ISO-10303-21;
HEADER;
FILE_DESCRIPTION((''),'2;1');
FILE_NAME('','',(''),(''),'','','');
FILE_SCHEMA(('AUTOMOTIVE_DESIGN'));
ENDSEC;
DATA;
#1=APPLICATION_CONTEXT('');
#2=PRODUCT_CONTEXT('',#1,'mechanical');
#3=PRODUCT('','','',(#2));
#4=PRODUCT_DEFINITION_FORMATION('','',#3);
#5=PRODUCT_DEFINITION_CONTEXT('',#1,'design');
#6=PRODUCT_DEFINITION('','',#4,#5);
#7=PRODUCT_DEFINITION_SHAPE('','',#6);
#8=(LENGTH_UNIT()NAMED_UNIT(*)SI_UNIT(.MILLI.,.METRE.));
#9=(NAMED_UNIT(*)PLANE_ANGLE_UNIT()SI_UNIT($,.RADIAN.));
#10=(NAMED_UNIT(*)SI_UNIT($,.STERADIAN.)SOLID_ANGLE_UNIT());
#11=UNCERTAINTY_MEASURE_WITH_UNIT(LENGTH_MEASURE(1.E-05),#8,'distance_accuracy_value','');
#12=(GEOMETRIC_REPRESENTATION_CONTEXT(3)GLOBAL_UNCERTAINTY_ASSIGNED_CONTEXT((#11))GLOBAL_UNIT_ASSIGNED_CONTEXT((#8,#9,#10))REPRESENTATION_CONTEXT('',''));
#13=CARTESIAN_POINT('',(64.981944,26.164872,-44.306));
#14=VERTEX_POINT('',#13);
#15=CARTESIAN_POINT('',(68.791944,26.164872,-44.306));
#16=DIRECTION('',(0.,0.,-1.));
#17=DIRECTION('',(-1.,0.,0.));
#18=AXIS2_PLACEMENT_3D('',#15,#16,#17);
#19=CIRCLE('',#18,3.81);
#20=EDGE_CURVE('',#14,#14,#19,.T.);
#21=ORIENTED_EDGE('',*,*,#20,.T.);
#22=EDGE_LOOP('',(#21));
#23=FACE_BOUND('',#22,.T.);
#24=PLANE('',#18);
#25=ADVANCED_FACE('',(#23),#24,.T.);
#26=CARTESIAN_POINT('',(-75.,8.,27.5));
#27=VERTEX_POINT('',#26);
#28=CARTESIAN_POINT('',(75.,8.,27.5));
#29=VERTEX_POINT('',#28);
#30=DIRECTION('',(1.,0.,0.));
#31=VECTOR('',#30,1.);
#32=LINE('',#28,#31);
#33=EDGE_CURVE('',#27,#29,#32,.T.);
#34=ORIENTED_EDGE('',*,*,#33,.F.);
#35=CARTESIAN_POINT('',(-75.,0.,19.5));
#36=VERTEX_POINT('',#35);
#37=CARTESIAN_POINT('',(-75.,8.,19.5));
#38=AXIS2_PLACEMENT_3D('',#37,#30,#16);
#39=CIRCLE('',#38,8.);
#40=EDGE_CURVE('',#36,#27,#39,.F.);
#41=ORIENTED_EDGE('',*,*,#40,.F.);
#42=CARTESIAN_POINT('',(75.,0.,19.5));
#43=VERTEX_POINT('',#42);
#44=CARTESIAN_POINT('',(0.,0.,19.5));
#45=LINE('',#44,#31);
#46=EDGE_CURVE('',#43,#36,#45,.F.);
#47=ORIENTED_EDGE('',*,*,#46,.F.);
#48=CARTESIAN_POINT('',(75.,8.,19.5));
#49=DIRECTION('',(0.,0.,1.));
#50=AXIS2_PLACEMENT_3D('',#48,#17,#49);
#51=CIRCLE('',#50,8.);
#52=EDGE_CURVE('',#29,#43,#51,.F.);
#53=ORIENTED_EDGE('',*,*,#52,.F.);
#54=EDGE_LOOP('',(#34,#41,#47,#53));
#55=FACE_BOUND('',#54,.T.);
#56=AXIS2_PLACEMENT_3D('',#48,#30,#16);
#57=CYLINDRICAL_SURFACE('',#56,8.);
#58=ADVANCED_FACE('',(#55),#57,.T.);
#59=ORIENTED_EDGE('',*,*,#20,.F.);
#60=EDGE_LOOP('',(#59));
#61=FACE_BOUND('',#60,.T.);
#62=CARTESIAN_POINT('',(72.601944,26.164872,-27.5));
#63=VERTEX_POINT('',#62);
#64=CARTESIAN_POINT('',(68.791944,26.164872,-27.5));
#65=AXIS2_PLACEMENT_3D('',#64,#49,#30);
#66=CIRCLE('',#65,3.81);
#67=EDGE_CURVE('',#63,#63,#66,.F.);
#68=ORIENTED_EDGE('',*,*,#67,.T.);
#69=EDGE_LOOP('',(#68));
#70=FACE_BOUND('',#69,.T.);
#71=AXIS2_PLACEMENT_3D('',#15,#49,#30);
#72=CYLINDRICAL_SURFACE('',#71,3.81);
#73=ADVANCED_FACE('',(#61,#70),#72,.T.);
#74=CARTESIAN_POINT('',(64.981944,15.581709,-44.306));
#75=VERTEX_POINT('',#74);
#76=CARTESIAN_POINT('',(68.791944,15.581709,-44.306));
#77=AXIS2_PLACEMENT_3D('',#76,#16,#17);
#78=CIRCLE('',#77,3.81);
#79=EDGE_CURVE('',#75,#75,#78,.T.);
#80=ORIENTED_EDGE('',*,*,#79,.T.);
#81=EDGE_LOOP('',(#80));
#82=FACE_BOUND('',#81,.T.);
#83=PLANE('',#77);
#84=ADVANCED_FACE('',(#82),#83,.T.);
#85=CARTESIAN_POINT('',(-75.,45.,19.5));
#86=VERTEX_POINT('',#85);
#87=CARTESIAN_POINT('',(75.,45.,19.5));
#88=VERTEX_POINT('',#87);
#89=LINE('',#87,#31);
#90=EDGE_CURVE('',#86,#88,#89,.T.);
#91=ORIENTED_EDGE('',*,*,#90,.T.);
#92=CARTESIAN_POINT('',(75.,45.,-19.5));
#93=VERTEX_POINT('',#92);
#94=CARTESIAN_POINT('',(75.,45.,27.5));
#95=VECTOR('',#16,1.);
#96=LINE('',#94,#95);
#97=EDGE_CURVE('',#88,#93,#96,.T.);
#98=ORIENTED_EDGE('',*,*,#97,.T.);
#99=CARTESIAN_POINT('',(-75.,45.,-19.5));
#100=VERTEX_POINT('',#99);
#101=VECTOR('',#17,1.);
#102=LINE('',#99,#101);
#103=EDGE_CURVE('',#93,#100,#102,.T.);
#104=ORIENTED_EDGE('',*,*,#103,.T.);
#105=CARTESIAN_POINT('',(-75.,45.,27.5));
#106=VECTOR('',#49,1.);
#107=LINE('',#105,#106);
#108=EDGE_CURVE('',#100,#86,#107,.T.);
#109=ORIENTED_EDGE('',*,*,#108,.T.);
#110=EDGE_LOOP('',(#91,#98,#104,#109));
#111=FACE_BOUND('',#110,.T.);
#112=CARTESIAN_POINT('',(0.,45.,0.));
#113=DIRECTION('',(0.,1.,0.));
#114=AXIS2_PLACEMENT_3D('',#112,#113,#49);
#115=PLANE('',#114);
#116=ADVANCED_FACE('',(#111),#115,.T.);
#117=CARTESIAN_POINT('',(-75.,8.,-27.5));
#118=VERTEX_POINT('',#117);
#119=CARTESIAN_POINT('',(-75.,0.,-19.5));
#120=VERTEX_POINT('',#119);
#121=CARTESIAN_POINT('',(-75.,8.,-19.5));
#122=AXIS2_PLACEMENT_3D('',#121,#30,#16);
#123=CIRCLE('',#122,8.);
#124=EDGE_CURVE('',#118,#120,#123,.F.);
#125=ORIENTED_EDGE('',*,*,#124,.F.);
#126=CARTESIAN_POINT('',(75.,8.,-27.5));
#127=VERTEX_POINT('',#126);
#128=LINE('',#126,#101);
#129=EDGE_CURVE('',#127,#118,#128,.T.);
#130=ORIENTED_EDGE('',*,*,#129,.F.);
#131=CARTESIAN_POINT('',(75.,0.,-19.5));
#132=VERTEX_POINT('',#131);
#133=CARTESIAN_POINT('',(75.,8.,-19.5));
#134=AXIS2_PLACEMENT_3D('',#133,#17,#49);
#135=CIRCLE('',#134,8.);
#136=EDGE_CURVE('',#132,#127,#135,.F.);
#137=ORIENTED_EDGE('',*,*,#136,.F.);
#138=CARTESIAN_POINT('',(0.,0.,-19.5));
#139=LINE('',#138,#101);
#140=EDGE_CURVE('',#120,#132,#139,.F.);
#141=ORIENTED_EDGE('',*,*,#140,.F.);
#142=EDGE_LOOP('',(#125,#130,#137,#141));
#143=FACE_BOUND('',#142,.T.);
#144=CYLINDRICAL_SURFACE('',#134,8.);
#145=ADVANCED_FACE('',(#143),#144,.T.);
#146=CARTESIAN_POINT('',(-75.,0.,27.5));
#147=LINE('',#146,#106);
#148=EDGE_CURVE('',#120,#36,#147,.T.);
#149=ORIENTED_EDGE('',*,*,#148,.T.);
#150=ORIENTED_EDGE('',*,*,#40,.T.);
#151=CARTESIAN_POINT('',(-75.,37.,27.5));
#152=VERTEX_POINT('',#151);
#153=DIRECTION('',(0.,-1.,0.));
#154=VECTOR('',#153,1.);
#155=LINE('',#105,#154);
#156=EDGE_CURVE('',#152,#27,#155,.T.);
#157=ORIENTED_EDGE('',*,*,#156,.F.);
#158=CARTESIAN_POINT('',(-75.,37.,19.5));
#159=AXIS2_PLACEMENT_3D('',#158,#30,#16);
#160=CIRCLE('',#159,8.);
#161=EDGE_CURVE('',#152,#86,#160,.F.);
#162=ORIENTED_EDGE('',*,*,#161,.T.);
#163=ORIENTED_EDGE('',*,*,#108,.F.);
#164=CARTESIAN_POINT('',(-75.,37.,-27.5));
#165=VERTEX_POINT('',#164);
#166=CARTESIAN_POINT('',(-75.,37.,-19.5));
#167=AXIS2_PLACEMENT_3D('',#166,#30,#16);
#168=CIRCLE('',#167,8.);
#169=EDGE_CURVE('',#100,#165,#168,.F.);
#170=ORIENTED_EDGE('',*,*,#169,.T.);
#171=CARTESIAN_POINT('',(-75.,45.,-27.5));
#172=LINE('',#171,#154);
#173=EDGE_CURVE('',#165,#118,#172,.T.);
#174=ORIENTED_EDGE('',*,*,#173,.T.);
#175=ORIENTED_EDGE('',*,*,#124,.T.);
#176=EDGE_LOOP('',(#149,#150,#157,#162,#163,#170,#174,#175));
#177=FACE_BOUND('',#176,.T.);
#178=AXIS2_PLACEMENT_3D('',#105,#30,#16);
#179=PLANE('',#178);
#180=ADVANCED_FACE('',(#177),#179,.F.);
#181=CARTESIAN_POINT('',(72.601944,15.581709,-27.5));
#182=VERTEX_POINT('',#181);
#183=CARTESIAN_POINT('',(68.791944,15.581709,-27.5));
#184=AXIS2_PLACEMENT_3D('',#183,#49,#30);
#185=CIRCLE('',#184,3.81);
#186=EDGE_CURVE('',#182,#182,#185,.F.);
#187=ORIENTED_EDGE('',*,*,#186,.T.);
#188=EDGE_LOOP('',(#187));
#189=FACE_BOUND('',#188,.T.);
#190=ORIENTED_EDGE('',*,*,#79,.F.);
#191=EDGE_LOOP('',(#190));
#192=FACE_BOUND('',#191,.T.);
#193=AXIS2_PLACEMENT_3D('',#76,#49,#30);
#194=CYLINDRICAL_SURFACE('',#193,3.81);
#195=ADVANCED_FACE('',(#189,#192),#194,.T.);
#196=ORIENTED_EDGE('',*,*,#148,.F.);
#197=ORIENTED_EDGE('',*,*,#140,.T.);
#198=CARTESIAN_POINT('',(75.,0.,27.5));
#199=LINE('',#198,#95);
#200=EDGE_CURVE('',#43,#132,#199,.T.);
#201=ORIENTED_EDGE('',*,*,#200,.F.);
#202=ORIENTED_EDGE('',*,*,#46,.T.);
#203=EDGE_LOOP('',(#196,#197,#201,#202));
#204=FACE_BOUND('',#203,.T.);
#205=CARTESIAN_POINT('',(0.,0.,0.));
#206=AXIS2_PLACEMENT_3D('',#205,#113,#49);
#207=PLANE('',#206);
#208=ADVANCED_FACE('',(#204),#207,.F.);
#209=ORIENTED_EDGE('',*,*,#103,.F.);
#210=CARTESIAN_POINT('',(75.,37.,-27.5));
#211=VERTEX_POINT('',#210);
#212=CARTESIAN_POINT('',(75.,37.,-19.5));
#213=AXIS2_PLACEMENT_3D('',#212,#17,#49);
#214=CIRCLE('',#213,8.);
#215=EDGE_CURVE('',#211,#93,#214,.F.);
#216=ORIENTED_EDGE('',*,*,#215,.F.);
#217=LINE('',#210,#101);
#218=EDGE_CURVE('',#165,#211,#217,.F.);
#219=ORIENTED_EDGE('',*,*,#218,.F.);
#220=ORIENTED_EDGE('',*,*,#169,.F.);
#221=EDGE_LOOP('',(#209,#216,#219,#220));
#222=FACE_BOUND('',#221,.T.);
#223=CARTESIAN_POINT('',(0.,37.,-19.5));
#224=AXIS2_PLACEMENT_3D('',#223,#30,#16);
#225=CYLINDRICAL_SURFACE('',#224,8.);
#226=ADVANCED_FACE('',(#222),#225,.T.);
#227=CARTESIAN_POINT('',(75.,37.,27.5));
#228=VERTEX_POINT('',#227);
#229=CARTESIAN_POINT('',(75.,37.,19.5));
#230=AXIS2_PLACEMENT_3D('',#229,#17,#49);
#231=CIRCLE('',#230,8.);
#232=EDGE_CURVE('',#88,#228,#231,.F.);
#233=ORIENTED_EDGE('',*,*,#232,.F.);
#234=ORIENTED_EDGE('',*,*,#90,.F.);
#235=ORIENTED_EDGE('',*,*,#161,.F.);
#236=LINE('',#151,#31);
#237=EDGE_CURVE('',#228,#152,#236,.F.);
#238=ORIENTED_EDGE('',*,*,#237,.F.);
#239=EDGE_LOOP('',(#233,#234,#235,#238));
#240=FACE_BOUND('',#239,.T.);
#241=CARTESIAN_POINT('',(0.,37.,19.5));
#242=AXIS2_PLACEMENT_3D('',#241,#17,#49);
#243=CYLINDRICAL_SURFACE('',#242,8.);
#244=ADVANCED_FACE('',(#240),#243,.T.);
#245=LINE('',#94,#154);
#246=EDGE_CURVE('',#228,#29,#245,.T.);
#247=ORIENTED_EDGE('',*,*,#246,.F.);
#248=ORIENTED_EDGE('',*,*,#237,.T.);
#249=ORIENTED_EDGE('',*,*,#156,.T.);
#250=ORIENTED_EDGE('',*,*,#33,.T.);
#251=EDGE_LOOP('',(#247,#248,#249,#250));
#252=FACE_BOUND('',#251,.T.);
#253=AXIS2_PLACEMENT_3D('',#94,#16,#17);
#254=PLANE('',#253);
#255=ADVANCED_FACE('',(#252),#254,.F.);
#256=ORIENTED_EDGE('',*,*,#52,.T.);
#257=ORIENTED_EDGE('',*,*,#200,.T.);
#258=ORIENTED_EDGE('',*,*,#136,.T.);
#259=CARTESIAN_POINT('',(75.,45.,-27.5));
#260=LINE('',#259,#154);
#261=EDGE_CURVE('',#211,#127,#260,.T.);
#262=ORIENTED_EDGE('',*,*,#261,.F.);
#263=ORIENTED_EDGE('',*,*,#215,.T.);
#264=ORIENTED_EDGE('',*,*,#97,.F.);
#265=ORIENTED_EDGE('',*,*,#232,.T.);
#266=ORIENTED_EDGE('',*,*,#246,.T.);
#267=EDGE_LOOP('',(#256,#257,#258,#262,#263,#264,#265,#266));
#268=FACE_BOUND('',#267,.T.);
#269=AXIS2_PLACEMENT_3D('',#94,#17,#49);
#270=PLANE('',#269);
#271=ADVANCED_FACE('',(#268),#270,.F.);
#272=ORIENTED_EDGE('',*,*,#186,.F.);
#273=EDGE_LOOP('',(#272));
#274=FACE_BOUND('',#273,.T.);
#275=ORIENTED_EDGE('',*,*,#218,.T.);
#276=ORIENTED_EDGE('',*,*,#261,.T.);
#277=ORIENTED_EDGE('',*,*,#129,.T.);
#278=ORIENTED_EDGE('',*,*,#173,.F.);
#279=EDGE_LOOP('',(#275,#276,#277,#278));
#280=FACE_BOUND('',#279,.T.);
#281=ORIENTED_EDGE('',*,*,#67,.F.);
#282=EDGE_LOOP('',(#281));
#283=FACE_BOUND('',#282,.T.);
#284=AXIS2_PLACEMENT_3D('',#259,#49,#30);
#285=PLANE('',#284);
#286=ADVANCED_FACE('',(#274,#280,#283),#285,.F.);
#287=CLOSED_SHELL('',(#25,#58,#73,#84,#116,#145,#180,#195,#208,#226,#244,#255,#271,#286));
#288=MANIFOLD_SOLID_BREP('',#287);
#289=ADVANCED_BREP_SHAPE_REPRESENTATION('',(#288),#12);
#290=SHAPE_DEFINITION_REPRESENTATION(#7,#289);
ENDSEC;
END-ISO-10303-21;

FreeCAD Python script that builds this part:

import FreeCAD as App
import Part
import Sketcher
Q = App.Units.Quantity


def edges_at(feature, points):
    """Names of the edges that pass closest to the given points."""
    edges = feature.Shape.Edges
    near = lambda p: min(range(len(edges)), key=lambda i: edges[i].distToShape(Part.Vertex(*p))[0])
    return sorted({f"Edge{near(p) + 1}" for p in points})

doc = App.newDocument("Part")
body = doc.addObject("PartDesign::Body", "Body")

# Sketch on XZ plane
sketch1 = body.newObject("Sketcher::SketchObject", "Sketch")
sketch1.AttachmentSupport = (doc.getObject("XZ_Plane"), [""])
sketch1.MapMode = "FlatFace"
sketch1.addGeometry(Part.LineSegment(App.Vector(-75, -28, 0), App.Vector(-75, 28, 0)), False)
sketch1.addGeometry(Part.LineSegment(App.Vector(-75, 28, 0), App.Vector(75, 28, 0)), False)
sketch1.addGeometry(Part.LineSegment(App.Vector(75, 28, 0), App.Vector(75, -28, 0)), False)
sketch1.addGeometry(Part.LineSegment(App.Vector(75, -28, 0), App.Vector(-75, -28, 0)), False)
sketch1.addConstraint(Sketcher.Constraint("Coincident", 0, 2, 1, 1))
sketch1.addConstraint(Sketcher.Constraint("Coincident", 1, 2, 2, 1))
sketch1.addConstraint(Sketcher.Constraint("Coincident", 2, 2, 3, 1))
sketch1.addConstraint(Sketcher.Constraint("Coincident", 3, 2, 0, 1))
sketch1.addConstraint(Sketcher.Constraint("Vertical", 0))
sketch1.addConstraint(Sketcher.Constraint("Horizontal", 1))
sketch1.addConstraint(Sketcher.Constraint("Vertical", 2))
sketch1.addConstraint(Sketcher.Constraint("Horizontal", 3))
sketch1.addConstraint(Sketcher.Constraint("Symmetric", 0, 2, 2, 2, -1, 1))
sketch1.addConstraint(Sketcher.Constraint("DistanceX", 1, 1, 1, 2, Q("150 mm")))
sketch1.addConstraint(Sketcher.Constraint("DistanceY", 0, 1, 0, 2, Q("55 mm")))
pad1 = body.newObject("PartDesign::Pad", "Pad")
pad1.Profile = sketch1
pad1.Length = 45
pad1.Reversed = True
doc.recompute()

fillet = body.newObject("PartDesign::Fillet", "Fillet")
fillet.Base = (pad1, edges_at(pad1, [
    (0, 45, -27.5),
    (0, 0, -27.5),
    (0, 0, 27.5),
    (0, 45, 27.5),
]))
fillet.Radius = 8

# Sketch on XY plane
sketch2 = body.newObject("Sketcher::SketchObject", "Sketch001")
sketch2.AttachmentSupport = (doc.getObject("XY_Plane"), [""])
sketch2.MapMode = "FlatFace"
sketch2.AttachmentOffset = App.Placement(App.Vector(0, 0, -27.5), App.Rotation())
sketch2.addGeometry(Part.Circle(App.Vector(68.8, 15.6, 0), App.Vector(0, 0, 1), 3.8), False)
sketch2.addConstraint(Sketcher.Constraint("Diameter", 0, Q("7.62 mm")))
sketch2.addConstraint(Sketcher.Constraint("DistanceY", -1, 1, 0, 3, Q("15.581709 mm")))
sketch2.addConstraint(Sketcher.Constraint("DistanceX", -1, 1, 0, 3, Q("68.791944 mm")))
pad2 = body.newObject("PartDesign::Pad", "Pad001")
pad2.Profile = sketch2
pad2.Length = 16.806
pad2.Reversed = True

# Sketch on XY plane
sketch3 = body.newObject("Sketcher::SketchObject", "Sketch002")
sketch3.AttachmentSupport = (doc.getObject("XY_Plane"), [""])
sketch3.MapMode = "FlatFace"
sketch3.AttachmentOffset = App.Placement(App.Vector(0, 0, -27.5), App.Rotation())
sketch3.addGeometry(Part.Circle(App.Vector(68.8, 26.2, 0), App.Vector(0, 0, 1), 3.8), False)
sketch3.addConstraint(Sketcher.Constraint("Diameter", 0, Q("7.62 mm")))
sketch3.addConstraint(Sketcher.Constraint("DistanceY", -1, 1, 0, 3, Q("26.164872 mm")))
sketch3.addConstraint(Sketcher.Constraint("DistanceX", -1, 1, 0, 3, Q("68.791944 mm")))
pad3 = body.newObject("PartDesign::Pad", "Pad002")
pad3.Profile = sketch3
pad3.Length = 16.806
pad3.Reversed = True

doc.recompute()
